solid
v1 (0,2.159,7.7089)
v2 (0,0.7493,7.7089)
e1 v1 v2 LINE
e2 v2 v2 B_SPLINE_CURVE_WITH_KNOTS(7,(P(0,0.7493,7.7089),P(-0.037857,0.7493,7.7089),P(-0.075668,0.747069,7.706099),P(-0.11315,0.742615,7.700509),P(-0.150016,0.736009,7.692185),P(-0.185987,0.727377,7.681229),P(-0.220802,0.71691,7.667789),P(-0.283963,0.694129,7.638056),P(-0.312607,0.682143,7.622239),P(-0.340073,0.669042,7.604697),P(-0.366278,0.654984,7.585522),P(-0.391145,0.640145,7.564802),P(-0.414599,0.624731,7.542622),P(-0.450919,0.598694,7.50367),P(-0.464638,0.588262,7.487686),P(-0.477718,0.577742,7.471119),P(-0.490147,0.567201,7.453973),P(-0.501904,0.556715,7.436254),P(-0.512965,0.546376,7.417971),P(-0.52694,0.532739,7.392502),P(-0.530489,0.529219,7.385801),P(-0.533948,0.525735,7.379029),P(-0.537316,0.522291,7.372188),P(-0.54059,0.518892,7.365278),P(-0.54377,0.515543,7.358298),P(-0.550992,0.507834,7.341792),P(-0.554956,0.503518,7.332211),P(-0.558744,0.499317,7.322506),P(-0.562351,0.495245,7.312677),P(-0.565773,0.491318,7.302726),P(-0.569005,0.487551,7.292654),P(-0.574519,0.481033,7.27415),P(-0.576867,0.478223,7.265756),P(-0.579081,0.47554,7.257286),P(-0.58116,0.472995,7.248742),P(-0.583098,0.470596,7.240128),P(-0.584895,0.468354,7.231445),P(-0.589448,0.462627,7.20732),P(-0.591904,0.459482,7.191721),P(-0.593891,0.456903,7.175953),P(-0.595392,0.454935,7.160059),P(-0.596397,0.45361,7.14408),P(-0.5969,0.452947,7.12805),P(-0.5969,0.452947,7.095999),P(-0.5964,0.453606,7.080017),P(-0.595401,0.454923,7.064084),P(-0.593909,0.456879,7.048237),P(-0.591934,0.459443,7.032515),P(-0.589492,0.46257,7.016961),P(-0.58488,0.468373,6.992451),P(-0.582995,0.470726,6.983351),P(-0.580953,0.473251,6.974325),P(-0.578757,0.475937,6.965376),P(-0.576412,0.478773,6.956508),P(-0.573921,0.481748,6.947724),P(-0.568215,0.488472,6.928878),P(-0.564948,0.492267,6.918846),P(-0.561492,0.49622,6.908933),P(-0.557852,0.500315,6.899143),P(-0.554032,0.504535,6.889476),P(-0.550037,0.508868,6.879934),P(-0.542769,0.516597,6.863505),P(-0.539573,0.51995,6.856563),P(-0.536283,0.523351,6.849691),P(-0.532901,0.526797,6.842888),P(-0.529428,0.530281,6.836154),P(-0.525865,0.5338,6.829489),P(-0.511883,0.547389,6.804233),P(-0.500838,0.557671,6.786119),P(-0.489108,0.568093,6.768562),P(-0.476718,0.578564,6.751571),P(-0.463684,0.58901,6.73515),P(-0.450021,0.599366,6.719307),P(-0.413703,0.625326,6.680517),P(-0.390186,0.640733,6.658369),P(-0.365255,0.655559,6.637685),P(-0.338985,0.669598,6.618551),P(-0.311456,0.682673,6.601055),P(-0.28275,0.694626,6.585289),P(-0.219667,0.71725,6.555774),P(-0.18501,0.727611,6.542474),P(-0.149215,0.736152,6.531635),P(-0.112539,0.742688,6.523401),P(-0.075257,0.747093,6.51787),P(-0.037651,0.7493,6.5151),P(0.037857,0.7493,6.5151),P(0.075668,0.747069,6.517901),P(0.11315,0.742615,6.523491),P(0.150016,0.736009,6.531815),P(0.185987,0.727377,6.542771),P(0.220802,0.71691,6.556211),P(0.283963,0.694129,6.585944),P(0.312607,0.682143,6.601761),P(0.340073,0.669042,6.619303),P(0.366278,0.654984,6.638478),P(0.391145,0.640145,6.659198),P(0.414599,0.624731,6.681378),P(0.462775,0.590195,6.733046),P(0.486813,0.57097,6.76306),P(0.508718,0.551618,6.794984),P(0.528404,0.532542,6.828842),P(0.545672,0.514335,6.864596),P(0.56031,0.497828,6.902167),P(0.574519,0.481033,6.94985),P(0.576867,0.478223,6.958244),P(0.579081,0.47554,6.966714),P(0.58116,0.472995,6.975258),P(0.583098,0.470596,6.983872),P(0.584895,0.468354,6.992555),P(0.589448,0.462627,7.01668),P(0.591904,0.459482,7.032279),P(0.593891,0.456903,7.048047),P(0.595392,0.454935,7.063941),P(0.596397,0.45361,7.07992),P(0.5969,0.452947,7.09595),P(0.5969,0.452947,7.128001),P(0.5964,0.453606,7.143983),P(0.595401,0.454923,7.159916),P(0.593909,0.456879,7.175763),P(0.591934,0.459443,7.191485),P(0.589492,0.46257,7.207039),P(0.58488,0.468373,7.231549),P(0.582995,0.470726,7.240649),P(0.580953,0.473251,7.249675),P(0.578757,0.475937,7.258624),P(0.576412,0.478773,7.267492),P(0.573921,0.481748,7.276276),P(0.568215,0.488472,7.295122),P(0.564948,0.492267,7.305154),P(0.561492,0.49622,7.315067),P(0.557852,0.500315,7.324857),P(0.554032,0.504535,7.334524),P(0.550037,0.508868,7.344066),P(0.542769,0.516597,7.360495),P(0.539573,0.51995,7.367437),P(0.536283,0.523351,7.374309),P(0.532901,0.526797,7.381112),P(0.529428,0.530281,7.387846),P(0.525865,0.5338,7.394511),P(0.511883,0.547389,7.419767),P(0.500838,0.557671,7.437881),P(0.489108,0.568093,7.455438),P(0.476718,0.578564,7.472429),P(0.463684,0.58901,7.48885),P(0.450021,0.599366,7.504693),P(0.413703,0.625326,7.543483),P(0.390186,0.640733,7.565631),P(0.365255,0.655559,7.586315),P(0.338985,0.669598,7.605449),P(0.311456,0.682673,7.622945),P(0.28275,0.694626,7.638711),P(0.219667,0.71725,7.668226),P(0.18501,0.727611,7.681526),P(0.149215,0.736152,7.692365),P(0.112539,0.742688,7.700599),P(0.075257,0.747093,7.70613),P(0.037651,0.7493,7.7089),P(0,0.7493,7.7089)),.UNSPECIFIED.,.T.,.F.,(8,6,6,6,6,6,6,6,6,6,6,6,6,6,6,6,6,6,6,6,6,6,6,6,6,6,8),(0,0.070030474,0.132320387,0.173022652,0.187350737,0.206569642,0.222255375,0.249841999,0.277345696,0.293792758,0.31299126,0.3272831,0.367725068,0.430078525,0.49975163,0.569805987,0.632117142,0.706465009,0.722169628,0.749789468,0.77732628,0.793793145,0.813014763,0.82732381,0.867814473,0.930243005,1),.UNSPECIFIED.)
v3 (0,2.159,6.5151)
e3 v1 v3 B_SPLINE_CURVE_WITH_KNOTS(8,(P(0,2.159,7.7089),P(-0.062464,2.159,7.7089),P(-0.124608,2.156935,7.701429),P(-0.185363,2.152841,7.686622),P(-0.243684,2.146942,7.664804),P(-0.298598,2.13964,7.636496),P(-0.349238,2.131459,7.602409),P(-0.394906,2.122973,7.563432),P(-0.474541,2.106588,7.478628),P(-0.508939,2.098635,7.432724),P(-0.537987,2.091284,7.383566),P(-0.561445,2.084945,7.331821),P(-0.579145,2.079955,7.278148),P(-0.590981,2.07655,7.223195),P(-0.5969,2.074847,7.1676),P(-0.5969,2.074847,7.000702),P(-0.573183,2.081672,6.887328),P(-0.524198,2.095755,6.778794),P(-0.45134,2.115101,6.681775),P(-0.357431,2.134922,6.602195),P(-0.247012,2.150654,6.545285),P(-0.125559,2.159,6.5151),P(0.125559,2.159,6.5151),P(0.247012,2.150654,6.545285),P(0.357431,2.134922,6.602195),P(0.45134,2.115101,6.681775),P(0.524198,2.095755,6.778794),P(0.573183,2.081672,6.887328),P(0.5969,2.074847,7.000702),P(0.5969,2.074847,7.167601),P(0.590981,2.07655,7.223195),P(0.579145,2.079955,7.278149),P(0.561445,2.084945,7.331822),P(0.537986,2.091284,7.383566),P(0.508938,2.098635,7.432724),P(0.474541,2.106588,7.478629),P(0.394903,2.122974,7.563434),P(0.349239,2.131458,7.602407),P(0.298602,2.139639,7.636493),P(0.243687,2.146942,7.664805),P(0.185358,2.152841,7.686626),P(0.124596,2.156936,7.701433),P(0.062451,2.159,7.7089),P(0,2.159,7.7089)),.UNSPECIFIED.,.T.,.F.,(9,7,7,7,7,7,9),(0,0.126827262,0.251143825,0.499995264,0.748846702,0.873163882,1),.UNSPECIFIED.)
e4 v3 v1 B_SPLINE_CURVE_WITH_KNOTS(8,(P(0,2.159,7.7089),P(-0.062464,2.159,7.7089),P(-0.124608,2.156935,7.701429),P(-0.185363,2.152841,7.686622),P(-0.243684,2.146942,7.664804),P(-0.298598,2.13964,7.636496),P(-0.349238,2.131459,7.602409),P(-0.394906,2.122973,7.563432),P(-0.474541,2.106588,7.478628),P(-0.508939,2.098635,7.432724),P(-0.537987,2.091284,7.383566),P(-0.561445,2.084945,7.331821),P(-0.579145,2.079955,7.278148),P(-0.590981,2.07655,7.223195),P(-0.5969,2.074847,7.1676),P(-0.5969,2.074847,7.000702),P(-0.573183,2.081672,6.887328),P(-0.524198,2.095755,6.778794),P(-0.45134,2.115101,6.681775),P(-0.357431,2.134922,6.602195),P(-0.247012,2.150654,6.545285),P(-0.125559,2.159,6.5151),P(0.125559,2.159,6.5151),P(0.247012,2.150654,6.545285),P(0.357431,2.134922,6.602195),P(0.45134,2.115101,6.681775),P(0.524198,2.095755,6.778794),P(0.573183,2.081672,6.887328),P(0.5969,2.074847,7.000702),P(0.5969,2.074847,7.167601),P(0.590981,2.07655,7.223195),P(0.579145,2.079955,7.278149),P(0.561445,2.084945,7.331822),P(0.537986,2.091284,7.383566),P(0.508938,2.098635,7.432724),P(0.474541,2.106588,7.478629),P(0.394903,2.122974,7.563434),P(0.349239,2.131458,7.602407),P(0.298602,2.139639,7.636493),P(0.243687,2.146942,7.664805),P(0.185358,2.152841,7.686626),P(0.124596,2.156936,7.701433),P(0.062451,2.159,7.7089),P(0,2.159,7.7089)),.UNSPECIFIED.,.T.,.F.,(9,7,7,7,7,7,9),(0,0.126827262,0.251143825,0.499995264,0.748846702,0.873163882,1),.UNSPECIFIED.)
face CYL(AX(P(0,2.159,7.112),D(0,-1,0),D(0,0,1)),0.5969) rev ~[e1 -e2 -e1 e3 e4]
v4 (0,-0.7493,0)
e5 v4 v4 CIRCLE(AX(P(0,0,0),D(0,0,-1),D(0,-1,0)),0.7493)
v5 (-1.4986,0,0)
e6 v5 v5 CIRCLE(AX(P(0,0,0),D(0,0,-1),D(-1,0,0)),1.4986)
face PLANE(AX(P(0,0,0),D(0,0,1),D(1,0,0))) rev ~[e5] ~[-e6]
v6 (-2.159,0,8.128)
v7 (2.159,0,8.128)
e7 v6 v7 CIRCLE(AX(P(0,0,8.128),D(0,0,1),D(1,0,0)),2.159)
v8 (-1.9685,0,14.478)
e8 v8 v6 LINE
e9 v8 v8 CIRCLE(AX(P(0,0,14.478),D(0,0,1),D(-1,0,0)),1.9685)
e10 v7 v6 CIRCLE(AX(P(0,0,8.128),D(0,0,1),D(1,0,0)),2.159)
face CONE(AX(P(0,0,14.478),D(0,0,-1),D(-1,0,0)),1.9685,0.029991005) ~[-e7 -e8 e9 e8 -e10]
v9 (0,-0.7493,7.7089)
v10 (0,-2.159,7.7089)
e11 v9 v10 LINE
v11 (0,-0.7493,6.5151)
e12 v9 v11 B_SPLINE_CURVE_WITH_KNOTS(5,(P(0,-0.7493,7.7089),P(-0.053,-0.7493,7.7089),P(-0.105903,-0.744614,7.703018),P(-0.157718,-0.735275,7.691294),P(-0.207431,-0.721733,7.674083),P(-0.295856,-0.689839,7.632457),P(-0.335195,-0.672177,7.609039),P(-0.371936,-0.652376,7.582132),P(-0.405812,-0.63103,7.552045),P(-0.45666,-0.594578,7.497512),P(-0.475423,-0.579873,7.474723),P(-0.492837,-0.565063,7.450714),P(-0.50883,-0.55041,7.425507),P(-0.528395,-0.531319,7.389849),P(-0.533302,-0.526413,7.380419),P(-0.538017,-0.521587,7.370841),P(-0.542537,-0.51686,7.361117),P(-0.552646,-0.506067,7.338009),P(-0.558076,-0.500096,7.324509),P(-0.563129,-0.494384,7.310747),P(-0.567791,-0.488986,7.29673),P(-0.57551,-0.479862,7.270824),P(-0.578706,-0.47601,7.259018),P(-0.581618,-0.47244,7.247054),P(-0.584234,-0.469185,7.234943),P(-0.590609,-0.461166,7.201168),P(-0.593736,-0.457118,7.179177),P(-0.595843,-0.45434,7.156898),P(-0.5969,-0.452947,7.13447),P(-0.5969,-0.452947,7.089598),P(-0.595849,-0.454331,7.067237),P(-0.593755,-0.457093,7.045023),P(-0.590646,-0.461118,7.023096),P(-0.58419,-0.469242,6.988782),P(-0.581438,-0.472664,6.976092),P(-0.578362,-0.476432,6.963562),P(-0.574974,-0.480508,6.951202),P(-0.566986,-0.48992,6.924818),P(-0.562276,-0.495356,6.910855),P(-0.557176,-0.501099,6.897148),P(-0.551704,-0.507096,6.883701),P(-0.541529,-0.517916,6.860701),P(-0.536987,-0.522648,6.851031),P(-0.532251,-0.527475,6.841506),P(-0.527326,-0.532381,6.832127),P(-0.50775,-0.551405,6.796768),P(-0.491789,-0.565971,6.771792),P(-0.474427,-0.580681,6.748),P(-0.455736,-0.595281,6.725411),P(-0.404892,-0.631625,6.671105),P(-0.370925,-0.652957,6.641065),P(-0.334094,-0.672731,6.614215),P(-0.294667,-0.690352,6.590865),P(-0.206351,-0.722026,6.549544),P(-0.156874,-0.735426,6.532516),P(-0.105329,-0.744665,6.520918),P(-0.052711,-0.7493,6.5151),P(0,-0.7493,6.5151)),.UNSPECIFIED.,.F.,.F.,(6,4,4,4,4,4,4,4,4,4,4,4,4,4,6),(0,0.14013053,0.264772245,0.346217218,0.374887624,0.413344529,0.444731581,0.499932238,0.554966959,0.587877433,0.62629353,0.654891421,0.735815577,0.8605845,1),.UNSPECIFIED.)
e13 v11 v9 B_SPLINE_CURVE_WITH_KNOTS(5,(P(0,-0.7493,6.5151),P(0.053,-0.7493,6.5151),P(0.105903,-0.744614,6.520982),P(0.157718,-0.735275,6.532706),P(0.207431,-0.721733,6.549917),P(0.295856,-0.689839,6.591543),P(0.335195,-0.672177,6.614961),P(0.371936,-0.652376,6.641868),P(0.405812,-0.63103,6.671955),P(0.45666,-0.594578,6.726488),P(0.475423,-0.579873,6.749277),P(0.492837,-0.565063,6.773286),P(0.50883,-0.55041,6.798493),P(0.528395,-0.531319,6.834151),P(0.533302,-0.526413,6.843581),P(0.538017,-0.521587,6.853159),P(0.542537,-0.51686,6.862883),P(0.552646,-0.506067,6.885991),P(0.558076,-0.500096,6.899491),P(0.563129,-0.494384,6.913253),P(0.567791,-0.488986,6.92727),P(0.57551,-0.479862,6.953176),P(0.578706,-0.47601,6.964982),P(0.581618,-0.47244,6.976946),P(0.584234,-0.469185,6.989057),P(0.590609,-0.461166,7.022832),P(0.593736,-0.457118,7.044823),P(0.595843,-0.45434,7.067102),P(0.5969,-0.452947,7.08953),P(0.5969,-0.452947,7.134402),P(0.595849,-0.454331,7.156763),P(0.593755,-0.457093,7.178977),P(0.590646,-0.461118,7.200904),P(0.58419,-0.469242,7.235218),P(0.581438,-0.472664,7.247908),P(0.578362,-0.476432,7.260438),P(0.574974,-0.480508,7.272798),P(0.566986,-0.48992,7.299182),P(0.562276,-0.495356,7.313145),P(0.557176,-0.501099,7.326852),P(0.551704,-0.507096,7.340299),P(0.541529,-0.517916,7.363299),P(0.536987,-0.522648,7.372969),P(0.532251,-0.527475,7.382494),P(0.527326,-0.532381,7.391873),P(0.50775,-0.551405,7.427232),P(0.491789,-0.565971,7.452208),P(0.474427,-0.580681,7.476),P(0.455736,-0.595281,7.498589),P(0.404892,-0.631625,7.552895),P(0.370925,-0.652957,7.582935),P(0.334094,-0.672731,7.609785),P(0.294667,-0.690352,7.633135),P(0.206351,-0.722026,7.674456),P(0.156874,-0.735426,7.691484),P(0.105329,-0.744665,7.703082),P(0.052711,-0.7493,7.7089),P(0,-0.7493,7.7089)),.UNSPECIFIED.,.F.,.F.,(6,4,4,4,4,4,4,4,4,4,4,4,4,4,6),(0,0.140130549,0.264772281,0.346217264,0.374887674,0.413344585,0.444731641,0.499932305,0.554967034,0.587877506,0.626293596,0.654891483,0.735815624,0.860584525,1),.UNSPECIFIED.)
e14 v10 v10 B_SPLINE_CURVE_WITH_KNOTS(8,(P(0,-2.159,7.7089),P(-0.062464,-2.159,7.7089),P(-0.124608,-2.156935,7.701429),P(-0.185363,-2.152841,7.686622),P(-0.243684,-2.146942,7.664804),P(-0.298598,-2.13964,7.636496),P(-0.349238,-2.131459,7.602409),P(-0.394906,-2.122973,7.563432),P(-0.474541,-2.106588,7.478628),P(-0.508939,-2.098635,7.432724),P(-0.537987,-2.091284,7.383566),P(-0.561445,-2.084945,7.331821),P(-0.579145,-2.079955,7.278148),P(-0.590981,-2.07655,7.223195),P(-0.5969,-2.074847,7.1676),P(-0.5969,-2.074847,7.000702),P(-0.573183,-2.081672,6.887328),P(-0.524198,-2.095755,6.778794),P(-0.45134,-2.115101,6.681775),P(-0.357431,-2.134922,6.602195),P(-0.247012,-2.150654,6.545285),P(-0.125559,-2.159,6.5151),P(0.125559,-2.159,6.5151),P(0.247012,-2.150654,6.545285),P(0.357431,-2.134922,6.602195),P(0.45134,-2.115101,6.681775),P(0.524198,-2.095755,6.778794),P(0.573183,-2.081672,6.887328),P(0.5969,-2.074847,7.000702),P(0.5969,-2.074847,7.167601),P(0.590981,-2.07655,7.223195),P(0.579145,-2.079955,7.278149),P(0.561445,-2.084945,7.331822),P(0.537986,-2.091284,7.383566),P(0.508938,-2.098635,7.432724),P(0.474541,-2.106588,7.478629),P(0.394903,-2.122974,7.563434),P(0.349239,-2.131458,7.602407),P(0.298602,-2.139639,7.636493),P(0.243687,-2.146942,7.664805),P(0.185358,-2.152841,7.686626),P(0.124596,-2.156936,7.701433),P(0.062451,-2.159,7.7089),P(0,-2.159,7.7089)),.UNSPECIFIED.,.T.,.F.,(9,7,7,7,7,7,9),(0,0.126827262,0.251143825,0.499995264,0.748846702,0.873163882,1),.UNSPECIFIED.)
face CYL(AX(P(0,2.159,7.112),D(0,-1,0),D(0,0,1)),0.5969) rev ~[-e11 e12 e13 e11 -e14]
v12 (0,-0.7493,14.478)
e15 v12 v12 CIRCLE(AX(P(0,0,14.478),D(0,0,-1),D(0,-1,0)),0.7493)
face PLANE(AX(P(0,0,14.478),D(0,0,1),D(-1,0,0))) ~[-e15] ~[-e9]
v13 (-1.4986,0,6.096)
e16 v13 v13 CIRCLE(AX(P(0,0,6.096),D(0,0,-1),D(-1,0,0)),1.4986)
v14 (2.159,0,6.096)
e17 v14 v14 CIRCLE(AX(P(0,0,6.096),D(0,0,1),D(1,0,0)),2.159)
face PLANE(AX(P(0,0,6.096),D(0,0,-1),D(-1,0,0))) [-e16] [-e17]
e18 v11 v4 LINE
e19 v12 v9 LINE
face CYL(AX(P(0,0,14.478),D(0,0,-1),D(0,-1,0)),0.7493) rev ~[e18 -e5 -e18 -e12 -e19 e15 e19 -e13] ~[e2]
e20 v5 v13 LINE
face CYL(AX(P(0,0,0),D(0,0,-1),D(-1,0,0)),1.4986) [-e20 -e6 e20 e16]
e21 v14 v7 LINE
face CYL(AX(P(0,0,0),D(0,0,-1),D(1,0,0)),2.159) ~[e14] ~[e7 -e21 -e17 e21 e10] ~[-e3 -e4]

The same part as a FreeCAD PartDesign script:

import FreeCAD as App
import Part
import Sketcher
from FreeCAD import Vector
Q = App.Units.Quantity

doc = App.newDocument("Part")
body = doc.addObject("PartDesign::Body", "Body")

# Sketch on XY plane
sketch1 = doc.addObject("Sketcher::SketchObject", "Sketch")
body.addObject(sketch1)
sketch1.AttachmentSupport = (doc.XY_Plane, [""])
sketch1.MapMode = "FlatFace"
sketch1.addGeometry(Part.Circle(Vector(0, 0, 0), Vector(0, 0, 1), 2.159), False)
sketch1.addConstraint(Sketcher.Constraint("Coincident", 0, 3, -1, 1))
sketch1.addConstraint(Sketcher.Constraint("Diameter", 0, Q("0.17 in")))
pad1 = doc.addObject("PartDesign::Pad", "Pad")
body.addObject(pad1)
pad1.Profile = sketch1
pad1.Length = Q("0.32 in")

# Sketch on XY plane
sketch2 = doc.addObject("Sketcher::SketchObject", "Sketch001")
body.addObject(sketch2)
sketch2.AttachmentSupport = (doc.XY_Plane, [""])
sketch2.MapMode = "FlatFace"
sketch2.addGeometry(Part.Circle(Vector(0, 0, 0), Vector(0, 0, 1), 2.159), False)
sketch2.addGeometry(Part.Circle(Vector(0, 0, 0), Vector(0, 0, 1), 1.4986), False)
sketch2.addConstraint(Sketcher.Constraint("Coincident", 0, 3, -1, 1))
sketch2.addConstraint(Sketcher.Constraint("Coincident", 1, 3, -1, 1))
sketch2.addConstraint(Sketcher.Constraint("Diameter", 1, Q("0.118 in")))
sketch2.addConstraint(Sketcher.Constraint("Diameter", 0, Q("0.17 in")))
pocket1 = doc.addObject("PartDesign::Pocket", "Pocket")
body.addObject(pocket1)
pocket1.Profile = sketch2
pocket1.Length = Q("0.24 in")
pocket1.Reversed = True

# Sketch on XZ plane
sketch3 = doc.addObject("Sketcher::SketchObject", "Sketch002")
body.addObject(sketch3)
sketch3.AttachmentSupport = (doc.XZ_Plane, [""])
sketch3.MapMode = "FlatFace"
sketch3.addGeometry(Part.LineSegment(Vector(0, 14.478, 0), Vector(0, 8.128, 0)), False)
sketch3.addGeometry(Part.LineSegment(Vector(0, 8.128, 0), Vector(-2.159, 8.128, 0)), False)
sketch3.addGeometry(Part.LineSegment(Vector(-2.159, 8.128, 0), Vector(-1.9685, 14.478, 0)), False)
sketch3.addGeometry(Part.LineSegment(Vector(-1.9685, 14.478, 0), Vector(0, 14.478, 0)), False)
sketch3.addConstraint(Sketcher.Constraint("Coincident", 0, 2, 1, 1))
sketch3.addConstraint(Sketcher.Constraint("Coincident", 1, 2, 2, 1))
sketch3.addConstraint(Sketcher.Constraint("Coincident", 2, 2, 3, 1))
sketch3.addConstraint(Sketcher.Constraint("Coincident", 3, 2, 0, 1))
sketch3.addConstraint(Sketcher.Constraint("Vertical", 0))
sketch3.addConstraint(Sketcher.Constraint("Horizontal", 1))
sketch3.addConstraint(Sketcher.Constraint("Horizontal", 3))
sketch3.addConstraint(Sketcher.Constraint("PointOnObject", 0, 2, -2))
sketch3.addConstraint(Sketcher.Constraint("DistanceY", 0, 2, 0, 1, Q("0.25 in")))
sketch3.addConstraint(Sketcher.Constraint("DistanceY", -1, 1, 0, 2, Q("0.32 in")))
sketch3.addConstraint(Sketcher.Constraint("DistanceX", 3, 1, 3, 2, Q("0.0775 in")))
sketch3.addConstraint(Sketcher.Constraint("DistanceX", 1, 2, 1, 1, Q("0.085 in")))
revolution = doc.addObject("PartDesign::Revolution", "Revolution")
body.addObject(revolution)
revolution.Profile = sketch3
revolution.ReferenceAxis = (sketch3, ["V_Axis"])
revolution.Angle = 360

# Sketch on XY plane
sketch4 = doc.addObject("Sketcher::SketchObject", "Sketch003")
body.addObject(sketch4)
sketch4.AttachmentSupport = (doc.XY_Plane, [""])
sketch4.MapMode = "FlatFace"
sketch4.AttachmentOffset = App.Placement(Vector(0, 0, 0.57 * 25.4), App.Rotation())
sketch4.addGeometry(Part.Circle(Vector(0, 0, 0), Vector(0, 0, 1), 0.7493), False)
sketch4.addConstraint(Sketcher.Constraint("Coincident", 0, 3, -1, 1))
sketch4.addConstraint(Sketcher.Constraint("Diameter", 0, Q("0.059 in")))
doc.recompute()
hole = doc.addObject("PartDesign::Hole", "Hole")
body.addObject(hole)
hole.Profile = sketch4
hole.ThreadType = "None"
hole.Diameter = Q("0.059 in")
hole.DepthType = "ThroughAll"

# Sketch on XZ plane
sketch5 = doc.addObject("Sketcher::SketchObject", "Sketch004")
body.addObject(sketch5)
sketch5.AttachmentSupport = (doc.XZ_Plane, [""])
sketch5.MapMode = "FlatFace"
sketch5.AttachmentOffset = App.Placement(Vector(0, 0, -0.085 * 25.4), App.Rotation())
sketch5.addGeometry(Part.Circle(Vector(0, 7.112, 0), Vector(0, 0, 1), 0.5969), False)
sketch5.addConstraint(Sketcher.Constraint("PointOnObject", 0, 3, -2))
sketch5.addConstraint(Sketcher.Constraint("Diameter", 0, Q("0.047 in")))
sketch5.addConstraint(Sketcher.Constraint("DistanceY", -1, 1, 0, 3, Q("0.28 in")))
doc.recompute()
hole2 = doc.addObject("PartDesign::Hole", "Hole001")
body.addObject(hole2)
hole2.Profile = sketch5
hole2.ThreadType = "None"
hole2.Diameter = Q("0.047 in")
hole2.DepthType = "ThroughAll"
hole2.Reversed = True

doc.recompute()
